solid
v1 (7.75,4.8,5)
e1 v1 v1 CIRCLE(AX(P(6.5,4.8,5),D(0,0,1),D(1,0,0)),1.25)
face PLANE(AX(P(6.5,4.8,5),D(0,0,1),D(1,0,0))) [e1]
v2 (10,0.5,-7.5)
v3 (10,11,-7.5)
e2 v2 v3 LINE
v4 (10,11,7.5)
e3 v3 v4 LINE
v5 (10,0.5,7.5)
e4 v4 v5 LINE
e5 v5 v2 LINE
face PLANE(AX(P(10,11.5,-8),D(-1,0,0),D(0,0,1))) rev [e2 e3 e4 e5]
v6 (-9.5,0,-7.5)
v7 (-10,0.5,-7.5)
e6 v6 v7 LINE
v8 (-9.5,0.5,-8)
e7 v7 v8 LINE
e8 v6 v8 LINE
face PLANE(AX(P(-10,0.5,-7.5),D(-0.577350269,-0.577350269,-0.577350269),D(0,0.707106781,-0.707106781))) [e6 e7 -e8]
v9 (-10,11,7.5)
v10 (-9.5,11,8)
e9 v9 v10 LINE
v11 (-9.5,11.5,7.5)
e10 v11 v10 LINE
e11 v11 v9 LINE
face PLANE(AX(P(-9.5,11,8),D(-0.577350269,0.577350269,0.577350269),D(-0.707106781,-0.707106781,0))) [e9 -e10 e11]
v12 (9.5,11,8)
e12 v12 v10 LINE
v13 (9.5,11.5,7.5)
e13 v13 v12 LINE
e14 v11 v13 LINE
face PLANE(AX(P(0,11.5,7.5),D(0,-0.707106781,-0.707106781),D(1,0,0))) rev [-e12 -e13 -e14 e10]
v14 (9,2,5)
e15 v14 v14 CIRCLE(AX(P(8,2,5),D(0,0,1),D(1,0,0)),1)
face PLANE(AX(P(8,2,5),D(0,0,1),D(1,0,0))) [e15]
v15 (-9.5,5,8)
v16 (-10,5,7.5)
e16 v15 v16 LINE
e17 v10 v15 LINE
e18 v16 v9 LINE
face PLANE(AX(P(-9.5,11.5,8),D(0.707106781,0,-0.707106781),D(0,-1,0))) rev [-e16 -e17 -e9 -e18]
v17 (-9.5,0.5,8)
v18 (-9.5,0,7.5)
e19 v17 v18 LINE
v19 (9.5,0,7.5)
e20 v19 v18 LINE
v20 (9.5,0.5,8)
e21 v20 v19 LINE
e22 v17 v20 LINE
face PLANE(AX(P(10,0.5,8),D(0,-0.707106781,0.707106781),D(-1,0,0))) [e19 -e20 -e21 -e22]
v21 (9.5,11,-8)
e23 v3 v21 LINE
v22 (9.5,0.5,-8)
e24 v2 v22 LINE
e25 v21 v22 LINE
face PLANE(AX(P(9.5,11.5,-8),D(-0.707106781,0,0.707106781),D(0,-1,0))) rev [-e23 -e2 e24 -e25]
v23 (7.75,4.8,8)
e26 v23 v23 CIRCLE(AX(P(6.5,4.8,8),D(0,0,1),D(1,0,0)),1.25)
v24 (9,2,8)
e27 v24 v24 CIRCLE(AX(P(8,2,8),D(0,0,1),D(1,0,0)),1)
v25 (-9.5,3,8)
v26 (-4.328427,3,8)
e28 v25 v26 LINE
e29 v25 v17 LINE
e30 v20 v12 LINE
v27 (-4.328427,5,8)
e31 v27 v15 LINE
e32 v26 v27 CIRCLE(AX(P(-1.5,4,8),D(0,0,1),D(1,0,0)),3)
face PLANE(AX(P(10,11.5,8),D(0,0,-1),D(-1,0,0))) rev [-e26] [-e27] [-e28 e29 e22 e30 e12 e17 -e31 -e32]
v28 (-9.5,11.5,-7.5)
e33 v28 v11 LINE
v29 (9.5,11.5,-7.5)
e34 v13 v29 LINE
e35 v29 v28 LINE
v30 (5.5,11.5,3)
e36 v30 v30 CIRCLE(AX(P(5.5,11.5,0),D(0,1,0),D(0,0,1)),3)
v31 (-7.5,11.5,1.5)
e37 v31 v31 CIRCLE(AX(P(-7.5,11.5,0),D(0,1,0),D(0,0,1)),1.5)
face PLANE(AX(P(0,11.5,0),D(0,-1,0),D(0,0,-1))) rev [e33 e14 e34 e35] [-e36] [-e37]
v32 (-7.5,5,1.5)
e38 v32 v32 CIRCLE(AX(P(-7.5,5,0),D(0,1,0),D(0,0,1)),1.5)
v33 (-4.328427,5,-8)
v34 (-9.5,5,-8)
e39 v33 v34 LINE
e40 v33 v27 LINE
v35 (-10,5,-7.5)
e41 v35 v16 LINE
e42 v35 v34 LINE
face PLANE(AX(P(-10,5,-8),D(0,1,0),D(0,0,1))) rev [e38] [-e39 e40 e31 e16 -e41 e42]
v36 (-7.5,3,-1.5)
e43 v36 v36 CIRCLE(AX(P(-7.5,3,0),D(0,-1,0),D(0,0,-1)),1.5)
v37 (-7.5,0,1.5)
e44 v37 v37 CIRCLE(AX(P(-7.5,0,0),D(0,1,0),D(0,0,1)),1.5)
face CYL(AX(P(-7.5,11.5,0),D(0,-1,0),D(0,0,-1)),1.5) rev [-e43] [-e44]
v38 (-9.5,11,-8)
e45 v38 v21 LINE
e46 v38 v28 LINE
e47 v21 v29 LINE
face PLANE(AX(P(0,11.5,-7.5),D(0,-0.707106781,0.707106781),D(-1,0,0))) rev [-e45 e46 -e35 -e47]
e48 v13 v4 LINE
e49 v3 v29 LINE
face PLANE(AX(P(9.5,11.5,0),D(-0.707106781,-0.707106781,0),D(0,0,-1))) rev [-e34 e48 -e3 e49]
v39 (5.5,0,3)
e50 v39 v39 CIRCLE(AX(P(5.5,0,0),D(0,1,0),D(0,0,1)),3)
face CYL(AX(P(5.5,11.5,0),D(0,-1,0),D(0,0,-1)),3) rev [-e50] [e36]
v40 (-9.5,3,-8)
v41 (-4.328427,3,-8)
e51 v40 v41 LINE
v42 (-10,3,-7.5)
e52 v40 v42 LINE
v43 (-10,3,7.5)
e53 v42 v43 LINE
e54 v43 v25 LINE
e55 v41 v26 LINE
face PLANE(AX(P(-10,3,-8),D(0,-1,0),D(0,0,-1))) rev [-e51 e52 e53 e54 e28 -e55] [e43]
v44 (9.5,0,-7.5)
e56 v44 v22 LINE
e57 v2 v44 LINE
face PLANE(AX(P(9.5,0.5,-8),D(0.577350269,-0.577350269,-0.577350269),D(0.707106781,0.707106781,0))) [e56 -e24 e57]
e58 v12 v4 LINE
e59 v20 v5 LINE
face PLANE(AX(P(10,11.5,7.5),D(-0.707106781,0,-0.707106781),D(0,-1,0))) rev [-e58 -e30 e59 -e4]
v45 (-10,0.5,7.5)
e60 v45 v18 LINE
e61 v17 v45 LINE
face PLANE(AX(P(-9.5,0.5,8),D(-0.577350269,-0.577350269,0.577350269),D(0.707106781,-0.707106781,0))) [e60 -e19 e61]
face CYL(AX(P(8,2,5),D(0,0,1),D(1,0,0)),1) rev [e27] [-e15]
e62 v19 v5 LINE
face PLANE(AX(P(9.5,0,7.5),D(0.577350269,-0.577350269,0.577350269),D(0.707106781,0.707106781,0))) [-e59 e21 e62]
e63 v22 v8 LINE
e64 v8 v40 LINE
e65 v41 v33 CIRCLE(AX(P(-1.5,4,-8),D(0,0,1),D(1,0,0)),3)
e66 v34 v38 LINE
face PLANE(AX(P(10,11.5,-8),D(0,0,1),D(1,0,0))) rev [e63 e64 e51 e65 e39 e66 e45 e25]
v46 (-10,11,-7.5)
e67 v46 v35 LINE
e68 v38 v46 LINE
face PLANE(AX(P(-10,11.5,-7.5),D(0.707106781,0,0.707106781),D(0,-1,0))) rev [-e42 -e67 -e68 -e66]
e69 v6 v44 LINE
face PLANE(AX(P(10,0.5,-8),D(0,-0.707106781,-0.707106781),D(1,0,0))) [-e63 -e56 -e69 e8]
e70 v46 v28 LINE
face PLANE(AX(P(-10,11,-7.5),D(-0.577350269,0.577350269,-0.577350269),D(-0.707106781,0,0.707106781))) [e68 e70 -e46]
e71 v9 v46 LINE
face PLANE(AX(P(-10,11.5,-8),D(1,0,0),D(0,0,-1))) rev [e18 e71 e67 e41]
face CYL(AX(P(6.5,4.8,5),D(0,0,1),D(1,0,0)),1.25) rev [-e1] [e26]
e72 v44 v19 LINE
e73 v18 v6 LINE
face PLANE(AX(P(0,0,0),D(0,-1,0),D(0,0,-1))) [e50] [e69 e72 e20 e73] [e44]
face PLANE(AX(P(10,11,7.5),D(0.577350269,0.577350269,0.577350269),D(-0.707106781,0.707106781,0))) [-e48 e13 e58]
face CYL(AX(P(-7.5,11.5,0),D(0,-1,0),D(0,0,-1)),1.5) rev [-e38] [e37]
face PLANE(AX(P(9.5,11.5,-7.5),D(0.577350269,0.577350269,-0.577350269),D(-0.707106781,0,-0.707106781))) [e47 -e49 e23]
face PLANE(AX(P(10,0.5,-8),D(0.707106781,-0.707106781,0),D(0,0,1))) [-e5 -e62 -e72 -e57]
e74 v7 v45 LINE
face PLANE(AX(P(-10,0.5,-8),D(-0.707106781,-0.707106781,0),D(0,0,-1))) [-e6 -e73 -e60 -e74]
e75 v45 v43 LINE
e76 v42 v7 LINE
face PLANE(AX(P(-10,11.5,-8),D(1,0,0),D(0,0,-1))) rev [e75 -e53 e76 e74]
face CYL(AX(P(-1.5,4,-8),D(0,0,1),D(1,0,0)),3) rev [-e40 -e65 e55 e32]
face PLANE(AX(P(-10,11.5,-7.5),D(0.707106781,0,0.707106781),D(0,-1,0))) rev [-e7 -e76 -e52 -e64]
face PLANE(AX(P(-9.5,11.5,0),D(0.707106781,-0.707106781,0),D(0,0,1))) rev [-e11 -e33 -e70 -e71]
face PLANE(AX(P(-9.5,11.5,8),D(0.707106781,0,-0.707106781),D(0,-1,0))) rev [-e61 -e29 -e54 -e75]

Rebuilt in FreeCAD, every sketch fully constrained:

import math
import FreeCAD as App
import Part
import Sketcher
from FreeCAD import Vector


def edges_at(feature, points):
    """Names of the edges that pass closest to the given points."""
    edges = feature.Shape.Edges
    near = lambda p: min(range(len(edges)), key=lambda i: edges[i].distToShape(Part.Vertex(*p))[0])
    return sorted({f"Edge{near(p) + 1}" for p in points})

doc = App.newDocument("Part")
body = doc.addObject("PartDesign::Body", "Body")

sketch1 = body.newObject("Sketcher::SketchObject", "Sketch")
sketch1.AttachmentSupport = (doc.getObject("XZ_Plane"), [""])
sketch1.MapMode = "FlatFace"
sketch1.addGeometry(Part.LineSegment(Vector(-10, -8, 0), Vector(-10, 8, 0)), False)
sketch1.addGeometry(Part.LineSegment(Vector(-10, 8, 0), Vector(10, 8, 0)), False)
sketch1.addGeometry(Part.LineSegment(Vector(10, 8, 0), Vector(10, -8, 0)), False)
sketch1.addGeometry(Part.LineSegment(Vector(10, -8, 0), Vector(-10, -8, 0)), False)
sketch1.addGeometry(Part.Circle(Vector(-7.5, 0, 0), Vector(0, 0, 1), 1.5), False)
sketch1.addGeometry(Part.Circle(Vector(5.5, 0, 0), Vector(0, 0, 1), 3), False)
sketch1.addConstraint(Sketcher.Constraint("Coincident", 0, 2, 1, 1))
sketch1.addConstraint(Sketcher.Constraint("Coincident", 1, 2, 2, 1))
sketch1.addConstraint(Sketcher.Constraint("Coincident", 2, 2, 3, 1))
sketch1.addConstraint(Sketcher.Constraint("Coincident", 3, 2, 0, 1))
sketch1.addConstraint(Sketcher.Constraint("Vertical", 0))
sketch1.addConstraint(Sketcher.Constraint("Horizontal", 1))
sketch1.addConstraint(Sketcher.Constraint("Vertical", 2))
sketch1.addConstraint(Sketcher.Constraint("Horizontal", 3))
sketch1.addConstraint(Sketcher.Constraint("Symmetric", 0, 2, 2, 2, -1, 1))
sketch1.addConstraint(Sketcher.Constraint("PointOnObject", 4, 3, -1))
sketch1.addConstraint(Sketcher.Constraint("PointOnObject", 5, 3, -1))
sketch1.addConstraint(Sketcher.Constraint("Diameter", 4, 3.0))
sketch1.addConstraint(Sketcher.Constraint("Diameter", 5, 6.0))
sketch1.addConstraint(Sketcher.Constraint("DistanceX", 1, 1, 1, 2, 20.0))
sketch1.addConstraint(Sketcher.Constraint("DistanceY", 0, 1, 0, 2, 16.0))
sketch1.addConstraint(Sketcher.Constraint("DistanceX", 4, 3, 5, 3, 13.0))
sketch1.addConstraint(Sketcher.Constraint("DistanceX", 4, 3, -1, 1, 7.5))
pad1 = body.newObject("PartDesign::Pad", "Pad")
pad1.Profile = sketch1
pad1.Length = 11.5
pad1.Reversed = True

sketch2 = body.newObject("Sketcher::SketchObject", "Sketch001")
sketch2.AttachmentSupport = (doc.getObject("XY_Plane"), [""])
sketch2.MapMode = "FlatFace"
sketch2.AttachmentOffset = App.Placement(Vector(0, 0, 8), App.Rotation())
sketch2.addGeometry(Part.LineSegment(Vector(-4.328427, 5, 0), Vector(-10, 5, 0)), False)
sketch2.addGeometry(Part.LineSegment(Vector(-10, 5, 0), Vector(-10, 3, 0)), False)
sketch2.addGeometry(Part.LineSegment(Vector(-10, 3, 0), Vector(-4.328427, 3, 0)), False)
sketch2.addGeometry(Part.ArcOfCircle(Part.Circle(Vector(-1.5, 4, 0), Vector(0, 0, 1), 3), math.radians(-160.528779), math.radians(160.528779)), False)
sketch2.addConstraint(Sketcher.Constraint("Coincident", 0, 2, 1, 1))
sketch2.addConstraint(Sketcher.Constraint("Coincident", 1, 2, 2, 1))
sketch2.addConstraint(Sketcher.Constraint("Coincident", 2, 2, 3, 1))
sketch2.addConstraint(Sketcher.Constraint("Coincident", 3, 2, 0, 1))
sketch2.addConstraint(Sketcher.Constraint("Horizontal", 0))
sketch2.addConstraint(Sketcher.Constraint("Vertical", 1))
sketch2.addConstraint(Sketcher.Constraint("Horizontal", 2))
sketch2.addConstraint(Sketcher.Constraint("Vertical", 2, 2, 3, 2))
sketch2.addConstraint(Sketcher.Constraint("Radius", 3, 3.0))
sketch2.addConstraint(Sketcher.Constraint("DistanceY", 1, 2, 1, 1, 2.0))
sketch2.addConstraint(Sketcher.Constraint("DistanceY", -1, 1, 3, 3, 4.0))
sketch2.addConstraint(Sketcher.Constraint("DistanceX", 0, 2, -1, 1, 10.0))
sketch2.addConstraint(Sketcher.Constraint("DistanceX", 3, 3, -1, 1, 1.5))
pocket1 = body.newObject("PartDesign::Pocket", "Pocket")
pocket1.Profile = sketch2
pocket1.Type = "ThroughAll"

sketch3 = body.newObject("Sketcher::SketchObject", "Sketch002")
sketch3.AttachmentSupport = (doc.getObject("XY_Plane"), [""])
sketch3.MapMode = "FlatFace"
sketch3.AttachmentOffset = App.Placement(Vector(0, 0, 8), App.Rotation())
sketch3.addGeometry(Part.Circle(Vector(6.5, 4.8, 0), Vector(0, 0, 1), 1.25), False)
sketch3.addGeometry(Part.Circle(Vector(8, 2, 0), Vector(0, 0, 1), 1), False)
sketch3.addConstraint(Sketcher.Constraint("Diameter", 1, 2.0))
sketch3.addConstraint(Sketcher.Constraint("Diameter", 0, 2.5))
sketch3.addConstraint(Sketcher.Constraint("DistanceX", -1, 1, 1, 3, 8.0))
sketch3.addConstraint(Sketcher.Constraint("DistanceY", -1, 1, 1, 3, 2.0))
sketch3.addConstraint(Sketcher.Constraint("DistanceX", -1, 1, 0, 3, 6.5))
sketch3.addConstraint(Sketcher.Constraint("DistanceY", -1, 1, 0, 3, 4.8))
pocket2 = body.newObject("PartDesign::Pocket", "Pocket001")
pocket2.Profile = sketch3
pocket2.Length = 3
doc.recompute()

chamfer = body.newObject("PartDesign::Chamfer", "Chamfer")
chamfer.Base = (pocket2, edges_at(pocket2, [
    (10, 11.5, 0),
    (0, 11.5, -8),
    (-10, 1.5, -8),
    (-10, 1.5, 8),
    (-10, 11.5, 0),
    (0, 0, -8),
    (10, 0, 0),
    (0, 0, 8),
    (-10, 0, 0),
    (0, 11.5, 8),
    (-10, 8.25, -8),
    (10, 5.75, -8),
    (10, 5.75, 8),
    (-10, 8.25, 8),
]))
chamfer.Size = 0.5

doc.recompute()
